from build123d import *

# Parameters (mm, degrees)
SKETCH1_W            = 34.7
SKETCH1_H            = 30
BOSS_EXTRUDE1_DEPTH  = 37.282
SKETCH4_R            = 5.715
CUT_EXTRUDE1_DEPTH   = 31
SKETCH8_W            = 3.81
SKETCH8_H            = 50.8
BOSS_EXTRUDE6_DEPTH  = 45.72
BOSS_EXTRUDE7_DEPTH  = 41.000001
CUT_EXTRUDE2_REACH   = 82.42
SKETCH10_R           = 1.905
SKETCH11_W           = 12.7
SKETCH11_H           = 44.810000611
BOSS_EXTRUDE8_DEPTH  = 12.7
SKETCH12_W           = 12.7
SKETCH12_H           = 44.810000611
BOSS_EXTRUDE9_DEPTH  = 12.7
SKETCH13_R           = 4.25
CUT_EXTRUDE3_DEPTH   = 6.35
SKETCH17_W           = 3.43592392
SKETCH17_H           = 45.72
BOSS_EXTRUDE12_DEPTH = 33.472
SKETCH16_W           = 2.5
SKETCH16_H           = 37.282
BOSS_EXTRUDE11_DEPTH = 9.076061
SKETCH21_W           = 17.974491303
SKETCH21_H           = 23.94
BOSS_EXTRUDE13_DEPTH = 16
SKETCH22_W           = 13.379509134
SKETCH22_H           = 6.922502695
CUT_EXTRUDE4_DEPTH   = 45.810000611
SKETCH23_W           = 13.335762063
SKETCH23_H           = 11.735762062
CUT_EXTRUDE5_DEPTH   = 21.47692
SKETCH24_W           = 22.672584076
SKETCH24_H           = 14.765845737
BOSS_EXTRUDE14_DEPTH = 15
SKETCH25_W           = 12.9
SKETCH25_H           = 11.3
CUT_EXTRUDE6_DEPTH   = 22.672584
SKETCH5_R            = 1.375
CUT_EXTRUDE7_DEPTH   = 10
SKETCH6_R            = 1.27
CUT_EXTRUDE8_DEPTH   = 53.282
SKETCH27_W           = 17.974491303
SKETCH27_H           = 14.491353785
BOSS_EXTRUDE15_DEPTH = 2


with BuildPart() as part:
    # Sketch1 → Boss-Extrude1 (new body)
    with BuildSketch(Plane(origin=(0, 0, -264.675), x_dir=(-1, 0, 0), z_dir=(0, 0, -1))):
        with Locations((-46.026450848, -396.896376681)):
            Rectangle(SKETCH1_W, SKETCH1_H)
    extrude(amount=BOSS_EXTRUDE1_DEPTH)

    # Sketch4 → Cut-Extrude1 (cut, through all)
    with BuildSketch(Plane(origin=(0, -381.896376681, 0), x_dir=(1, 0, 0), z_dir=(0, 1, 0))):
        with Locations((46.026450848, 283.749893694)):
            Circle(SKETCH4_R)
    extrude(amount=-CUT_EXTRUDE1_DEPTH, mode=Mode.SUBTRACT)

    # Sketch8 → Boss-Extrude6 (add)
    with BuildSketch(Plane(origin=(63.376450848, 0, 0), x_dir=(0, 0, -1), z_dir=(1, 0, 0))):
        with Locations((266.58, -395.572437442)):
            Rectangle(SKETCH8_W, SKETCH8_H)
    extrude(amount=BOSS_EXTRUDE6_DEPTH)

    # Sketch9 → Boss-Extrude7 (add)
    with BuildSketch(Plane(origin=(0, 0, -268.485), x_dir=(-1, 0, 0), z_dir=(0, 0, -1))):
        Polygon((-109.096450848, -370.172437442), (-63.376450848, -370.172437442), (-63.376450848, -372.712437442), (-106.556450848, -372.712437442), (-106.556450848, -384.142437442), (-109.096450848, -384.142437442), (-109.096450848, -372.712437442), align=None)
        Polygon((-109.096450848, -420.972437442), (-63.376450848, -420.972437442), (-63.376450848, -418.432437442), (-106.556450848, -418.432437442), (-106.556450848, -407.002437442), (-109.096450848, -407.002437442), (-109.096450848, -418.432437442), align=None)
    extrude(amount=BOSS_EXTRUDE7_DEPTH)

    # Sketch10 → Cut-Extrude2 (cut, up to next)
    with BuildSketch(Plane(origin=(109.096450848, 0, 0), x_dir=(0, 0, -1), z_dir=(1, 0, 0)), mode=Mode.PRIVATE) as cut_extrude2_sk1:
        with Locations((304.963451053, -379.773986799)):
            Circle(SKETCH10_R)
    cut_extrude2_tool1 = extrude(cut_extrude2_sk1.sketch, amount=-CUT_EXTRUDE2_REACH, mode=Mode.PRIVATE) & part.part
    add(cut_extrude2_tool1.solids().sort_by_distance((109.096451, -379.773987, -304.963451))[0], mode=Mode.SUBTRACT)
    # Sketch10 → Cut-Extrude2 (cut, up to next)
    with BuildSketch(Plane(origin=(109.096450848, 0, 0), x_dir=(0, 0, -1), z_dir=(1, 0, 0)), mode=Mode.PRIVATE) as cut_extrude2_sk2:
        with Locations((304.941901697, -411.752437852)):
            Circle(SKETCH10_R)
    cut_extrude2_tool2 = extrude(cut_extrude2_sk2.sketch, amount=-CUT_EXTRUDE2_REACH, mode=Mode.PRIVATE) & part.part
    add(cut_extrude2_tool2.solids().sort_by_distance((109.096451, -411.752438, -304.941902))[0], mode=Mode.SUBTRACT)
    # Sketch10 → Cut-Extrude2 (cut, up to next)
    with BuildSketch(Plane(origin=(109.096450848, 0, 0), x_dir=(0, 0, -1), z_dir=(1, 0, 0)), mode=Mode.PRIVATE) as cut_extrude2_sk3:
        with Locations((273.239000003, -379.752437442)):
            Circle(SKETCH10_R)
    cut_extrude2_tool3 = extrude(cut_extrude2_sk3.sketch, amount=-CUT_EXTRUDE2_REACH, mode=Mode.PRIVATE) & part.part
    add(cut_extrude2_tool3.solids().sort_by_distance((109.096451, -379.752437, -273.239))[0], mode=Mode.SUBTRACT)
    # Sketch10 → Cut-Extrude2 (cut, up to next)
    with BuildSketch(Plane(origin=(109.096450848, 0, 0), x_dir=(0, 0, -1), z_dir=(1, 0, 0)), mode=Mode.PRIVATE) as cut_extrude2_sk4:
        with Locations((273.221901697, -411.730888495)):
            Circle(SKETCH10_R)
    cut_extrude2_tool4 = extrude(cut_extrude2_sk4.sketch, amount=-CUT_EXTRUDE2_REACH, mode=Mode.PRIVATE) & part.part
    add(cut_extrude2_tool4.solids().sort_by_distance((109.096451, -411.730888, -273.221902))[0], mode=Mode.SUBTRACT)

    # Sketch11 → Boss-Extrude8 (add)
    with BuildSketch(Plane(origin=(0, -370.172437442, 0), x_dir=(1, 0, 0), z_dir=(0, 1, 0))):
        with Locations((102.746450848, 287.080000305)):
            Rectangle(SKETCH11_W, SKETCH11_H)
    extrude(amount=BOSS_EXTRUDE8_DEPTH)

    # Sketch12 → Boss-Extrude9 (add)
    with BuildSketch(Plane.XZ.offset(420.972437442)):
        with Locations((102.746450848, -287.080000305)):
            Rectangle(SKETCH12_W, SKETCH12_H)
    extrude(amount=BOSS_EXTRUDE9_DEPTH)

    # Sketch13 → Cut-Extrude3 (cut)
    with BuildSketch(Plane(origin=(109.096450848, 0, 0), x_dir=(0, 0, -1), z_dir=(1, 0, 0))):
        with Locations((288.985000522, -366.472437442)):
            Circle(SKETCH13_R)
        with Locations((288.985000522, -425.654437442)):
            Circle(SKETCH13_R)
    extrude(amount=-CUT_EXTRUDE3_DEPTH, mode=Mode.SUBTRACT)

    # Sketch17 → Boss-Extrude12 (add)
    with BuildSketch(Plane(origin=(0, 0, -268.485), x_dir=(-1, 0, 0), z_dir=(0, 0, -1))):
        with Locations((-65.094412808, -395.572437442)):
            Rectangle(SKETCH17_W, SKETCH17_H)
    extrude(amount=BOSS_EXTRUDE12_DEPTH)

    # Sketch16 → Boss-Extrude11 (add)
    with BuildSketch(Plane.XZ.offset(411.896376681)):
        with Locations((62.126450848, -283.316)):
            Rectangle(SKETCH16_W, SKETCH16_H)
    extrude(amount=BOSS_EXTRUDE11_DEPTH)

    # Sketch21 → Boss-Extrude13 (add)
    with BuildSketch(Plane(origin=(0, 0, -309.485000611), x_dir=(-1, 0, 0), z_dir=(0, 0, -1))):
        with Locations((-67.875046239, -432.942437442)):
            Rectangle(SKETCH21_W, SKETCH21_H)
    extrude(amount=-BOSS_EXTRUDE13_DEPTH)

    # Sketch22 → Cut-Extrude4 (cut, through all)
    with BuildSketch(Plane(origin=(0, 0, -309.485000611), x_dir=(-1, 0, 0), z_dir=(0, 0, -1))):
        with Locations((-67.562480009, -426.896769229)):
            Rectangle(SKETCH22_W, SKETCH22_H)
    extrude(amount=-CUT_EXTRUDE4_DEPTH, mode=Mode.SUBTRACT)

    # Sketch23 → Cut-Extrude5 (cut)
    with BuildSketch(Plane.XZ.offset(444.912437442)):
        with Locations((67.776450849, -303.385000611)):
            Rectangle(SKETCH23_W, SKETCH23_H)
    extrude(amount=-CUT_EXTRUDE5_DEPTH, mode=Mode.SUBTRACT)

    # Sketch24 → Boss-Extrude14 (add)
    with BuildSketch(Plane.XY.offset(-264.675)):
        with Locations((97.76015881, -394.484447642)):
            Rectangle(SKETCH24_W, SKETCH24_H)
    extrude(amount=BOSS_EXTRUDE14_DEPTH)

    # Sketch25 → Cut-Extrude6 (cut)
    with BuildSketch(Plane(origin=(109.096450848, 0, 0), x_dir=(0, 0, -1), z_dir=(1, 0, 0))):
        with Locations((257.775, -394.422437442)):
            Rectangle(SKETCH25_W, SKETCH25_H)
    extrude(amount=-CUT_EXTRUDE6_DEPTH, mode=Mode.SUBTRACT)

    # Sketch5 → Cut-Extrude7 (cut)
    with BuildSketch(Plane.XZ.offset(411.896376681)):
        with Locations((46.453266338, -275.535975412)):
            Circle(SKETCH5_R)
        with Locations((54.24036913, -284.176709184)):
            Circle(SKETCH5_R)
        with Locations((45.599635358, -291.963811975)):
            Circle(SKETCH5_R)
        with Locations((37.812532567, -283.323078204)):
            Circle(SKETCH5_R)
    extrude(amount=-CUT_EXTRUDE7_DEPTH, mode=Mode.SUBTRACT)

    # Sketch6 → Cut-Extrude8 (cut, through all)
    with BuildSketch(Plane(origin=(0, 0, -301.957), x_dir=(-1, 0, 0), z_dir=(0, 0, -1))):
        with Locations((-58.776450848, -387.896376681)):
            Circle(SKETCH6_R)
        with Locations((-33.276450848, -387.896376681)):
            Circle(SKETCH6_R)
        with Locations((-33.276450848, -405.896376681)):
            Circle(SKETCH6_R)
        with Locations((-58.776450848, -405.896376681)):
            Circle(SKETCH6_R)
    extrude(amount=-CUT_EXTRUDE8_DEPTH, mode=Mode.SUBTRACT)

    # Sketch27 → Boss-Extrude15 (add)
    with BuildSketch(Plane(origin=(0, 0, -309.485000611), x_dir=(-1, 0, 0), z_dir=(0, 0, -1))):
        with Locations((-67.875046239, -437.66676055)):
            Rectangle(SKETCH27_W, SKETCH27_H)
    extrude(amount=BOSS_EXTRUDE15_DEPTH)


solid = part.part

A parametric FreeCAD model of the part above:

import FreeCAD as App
import Part
import Sketcher

V = App.Vector

doc = App.newDocument("Part")
body = doc.addObject("PartDesign::Body", "Body")

# Sketch on XY plane
sketch1 = body.newObject("Sketcher::SketchObject", "Sketch")
sketch1.AttachmentSupport = (doc.getObject("XY_Plane"), [""])
sketch1.MapMode = "FlatFace"
sketch1.AttachmentOffset = App.Placement(V(0, 0, -264.675), App.Rotation())
sketch1.addGeometry([
    Part.LineSegment(V(63, -382, 0), V(63, -412, 0)),
    Part.LineSegment(V(63, -412, 0), V(29, -412, 0)),
    Part.LineSegment(V(29, -412, 0), V(29, -382, 0)),
    Part.LineSegment(V(29, -382, 0), V(63, -382, 0)),
], False)
sketch1.addConstraint([
    Sketcher.Constraint("Coincident", 0, 2, 1, 1),
    Sketcher.Constraint("Coincident", 1, 2, 2, 1),
    Sketcher.Constraint("Coincident", 2, 2, 3, 1),
    Sketcher.Constraint("Coincident", 3, 2, 0, 1),
    Sketcher.Constraint("Vertical", 0),
    Sketcher.Constraint("Horizontal", 1),
    Sketcher.Constraint("Vertical", 2),
    Sketcher.Constraint("Horizontal", 3),
    Sketcher.Constraint("DistanceY", 0, 2, 0, 1, 30.0),
    Sketcher.Constraint("DistanceX", 1, 2, 1, 1, 34.7),
    Sketcher.Constraint("DistanceX", -1, 1, 0, 2, 63.376451),
    Sketcher.Constraint("DistanceY", 0, 2, -1, 1, 411.896377),
])
pad1 = body.newObject("PartDesign::Pad", "Pad")
pad1.Profile = sketch1
pad1.Length = 37.282
pad1.Reversed = True

# Sketch on XZ plane
sketch2 = body.newObject("Sketcher::SketchObject", "Sketch001")
sketch2.AttachmentSupport = (doc.getObject("XZ_Plane"), [""])
sketch2.MapMode = "FlatFace"
sketch2.AttachmentOffset = App.Placement(V(0, 0, 381.896377), App.Rotation())
sketch2.addGeometry(Part.Circle(V(46, -284, 0), V(0, 0, 1), 6), False)
sketch2.addConstraint([
    Sketcher.Constraint("Diameter", 0, 11.43),
    Sketcher.Constraint("DistanceX", -1, 1, 0, 3, 46.026451),
    Sketcher.Constraint("DistanceY", 0, 3, -1, 1, 283.749894),
])
pocket1 = body.newObject("PartDesign::Pocket", "Pocket")
pocket1.Profile = sketch2
pocket1.Type = "ThroughAll"
pocket1.Reversed = True

# Sketch on YZ plane
sketch3 = body.newObject("Sketcher::SketchObject", "Sketch002")
sketch3.AttachmentSupport = (doc.getObject("YZ_Plane"), [""])
sketch3.MapMode = "FlatFace"
sketch3.AttachmentOffset = App.Placement(V(0, 0, 63.376451), App.Rotation())
sketch3.addGeometry([
    Part.LineSegment(V(-370.2, -264.7, 0), V(-421, -264.7, 0)),
    Part.LineSegment(V(-421, -264.7, 0), V(-421, -268.5, 0)),
    Part.LineSegment(V(-421, -268.5, 0), V(-370.2, -268.5, 0)),
    Part.LineSegment(V(-370.2, -268.5, 0), V(-370.2, -264.7, 0)),
], False)
sketch3.addConstraint([
    Sketcher.Constraint("Coincident", 0, 2, 1, 1),
    Sketcher.Constraint("Coincident", 1, 2, 2, 1),
    Sketcher.Constraint("Coincident", 2, 2, 3, 1),
    Sketcher.Constraint("Coincident", 3, 2, 0, 1),
    Sketcher.Constraint("Horizontal", 0),
    Sketcher.Constraint("Vertical", 1),
    Sketcher.Constraint("Horizontal", 2),
    Sketcher.Constraint("Vertical", 3),
    Sketcher.Constraint("DistanceX", 0, 2, 0, 1, 50.8),
    Sketcher.Constraint("DistanceY", 1, 2, 1, 1, 3.81),
    Sketcher.Constraint("DistanceY", 0, 2, -1, 1, 264.675),
    Sketcher.Constraint("DistanceX", 0, 2, -1, 1, 420.972437),
])
pad2 = body.newObject("PartDesign::Pad", "Pad001")
pad2.Profile = sketch3
pad2.Length = 45.72

# Sketch on XY plane
sketch4 = body.newObject("Sketcher::SketchObject", "Sketch003")
sketch4.AttachmentSupport = (doc.getObject("XY_Plane"), [""])
sketch4.MapMode = "FlatFace"
sketch4.AttachmentOffset = App.Placement(V(0, 0, -268.485), App.Rotation())
sketch4.addGeometry([
    Part.LineSegment(V(63.4, -370.2, 0), V(109.1, -370.2, 0)),  # 0
    Part.LineSegment(V(109.1, -370.2, 0), V(109.1, -384.1, 0)),  # 1
    Part.LineSegment(V(109.1, -384.1, 0), V(106.6, -384.1, 0)),  # 2
    Part.LineSegment(V(106.6, -384.1, 0), V(106.6, -372.7, 0)),  # 3
    Part.LineSegment(V(106.6, -372.7, 0), V(63.4, -372.7, 0)),  # 4
    Part.LineSegment(V(63.4, -372.7, 0), V(63.4, -370.2, 0)),  # 5
    Part.LineSegment(V(109.1, -421, 0), V(63.4, -421, 0)),  # 6
    Part.LineSegment(V(63.4, -421, 0), V(63.4, -418.4, 0)),  # 7
    Part.LineSegment(V(63.4, -418.4, 0), V(106.6, -418.4, 0)),  # 8
    Part.LineSegment(V(106.6, -418.4, 0), V(106.6, -407, 0)),  # 9
    Part.LineSegment(V(106.6, -407, 0), V(109.1, -407, 0)),  # 10
    Part.LineSegment(V(109.1, -407, 0), V(109.1, -421, 0)),  # 11
], False)
sketch4.addConstraint([
    Sketcher.Constraint("Coincident", 0, 2, 1, 1),
    Sketcher.Constraint("Coincident", 1, 2, 2, 1),
    Sketcher.Constraint("Coincident", 2, 2, 3, 1),
    Sketcher.Constraint("Coincident", 3, 2, 4, 1),
    Sketcher.Constraint("Coincident", 4, 2, 5, 1),
    Sketcher.Constraint("Coincident", 5, 2, 0, 1),
    Sketcher.Constraint("Coincident", 6, 2, 7, 1),
    Sketcher.Constraint("Coincident", 7, 2, 8, 1),
    Sketcher.Constraint("Coincident", 8, 2, 9, 1),
    Sketcher.Constraint("Coincident", 9, 2, 10, 1),
    Sketcher.Constraint("Coincident", 10, 2, 11, 1),
    Sketcher.Constraint("Coincident", 11, 2, 6, 1),
    Sketcher.Constraint("Horizontal", 0),
    Sketcher.Constraint("Vertical", 1),
    Sketcher.Constraint("Horizontal", 2),
    Sketcher.Constraint("Vertical", 3),
    Sketcher.Constraint("Horizontal", 4),
    Sketcher.Constraint("Vertical", 5),
    Sketcher.Constraint("Horizontal", 6),
    Sketcher.Constraint("Vertical", 7),
    Sketcher.Constraint("Horizontal", 8),
    Sketcher.Constraint("Vertical", 9),
    Sketcher.Constraint("Horizontal", 10),
    Sketcher.Constraint("Vertical", 11),
    Sketcher.Constraint("Vertical", 5, 2, 6, 2),
    Sketcher.Constraint("Vertical", 3, 2, 8, 2),
    Sketcher.Constraint("Vertical", 1, 2, 10, 2),
    Sketcher.Constraint("Equal", 10, 5),
    Sketcher.Constraint("Equal", 5, 7),
    Sketcher.Constraint("Equal", 3, 9),
    Sketcher.Constraint("DistanceX", 0, 1, 0, 2, 45.72),
    Sketcher.Constraint("DistanceX", 2, 2, 2, 1, 2.54),
    Sketcher.Constraint("DistanceY", 1, 2, 1, 1, 13.97),
    Sketcher.Constraint("DistanceY", 6, 2, 5, 2, 50.8),
    Sketcher.Constraint("DistanceX", -1, 1, 0, 2, 109.096451),
    Sketcher.Constraint("DistanceY", 0, 2, -1, 1, 370.172437),
])
pad3 = body.newObject("PartDesign::Pad", "Pad002")
pad3.Profile = sketch4
pad3.Length = 41.000001
pad3.Reversed = True

# Sketch on YZ plane
sketch5 = body.newObject("Sketcher::SketchObject", "Sketch004")
sketch5.AttachmentSupport = (doc.getObject("YZ_Plane"), [""])
sketch5.MapMode = "FlatFace"
sketch5.AttachmentOffset = App.Placement(V(0, 0, 109.096451), App.Rotation())
sketch5.addGeometry(Part.Circle(V(-379.8, -305, 0), V(0, 0, 1), 1.9), False)
sketch5.addConstraint([
    Sketcher.Constraint("Diameter", 0, 3.81),
    Sketcher.Constraint("DistanceY", 0, 3, -1, 1, 304.963451),
    Sketcher.Constraint("DistanceX", 0, 3, -1, 1, 379.773987),
])
pocket2 = body.newObject("PartDesign::Pocket", "Pocket001")
pocket2.Profile = sketch5
pocket2.Type = "UpToFirst"

# Sketch on YZ plane
sketch6 = body.newObject("Sketcher::SketchObject", "Sketch005")
sketch6.AttachmentSupport = (doc.getObject("YZ_Plane"), [""])
sketch6.MapMode = "FlatFace"
sketch6.AttachmentOffset = App.Placement(V(0, 0, 109.096451), App.Rotation())
sketch6.addGeometry(Part.Circle(V(-411.8, -304.9, 0), V(0, 0, 1), 1.9), False)
sketch6.addConstraint([
    Sketcher.Constraint("Diameter", 0, 3.81),
    Sketcher.Constraint("DistanceY", 0, 3, -1, 1, 304.941902),
    Sketcher.Constraint("DistanceX", 0, 3, -1, 1, 411.752438),
])
pocket3 = body.newObject("PartDesign::Pocket", "Pocket002")
pocket3.Profile = sketch6
pocket3.Type = "UpToFirst"

# Sketch on YZ plane
sketch7 = body.newObject("Sketcher::SketchObject", "Sketch006")
sketch7.AttachmentSupport = (doc.getObject("YZ_Plane"), [""])
sketch7.MapMode = "FlatFace"
sketch7.AttachmentOffset = App.Placement(V(0, 0, 109.096451), App.Rotation())
sketch7.addGeometry(Part.Circle(V(-379.8, -273.2, 0), V(0, 0, 1), 1.9), False)
sketch7.addConstraint([
    Sketcher.Constraint("Diameter", 0, 3.81),
    Sketcher.Constraint("DistanceY", 0, 3, -1, 1, 273.239),
    Sketcher.Constraint("DistanceX", 0, 3, -1, 1, 379.752437),
])
pocket4 = body.newObject("PartDesign::Pocket", "Pocket003")
pocket4.Profile = sketch7
pocket4.Type = "UpToFirst"

# Sketch on YZ plane
sketch8 = body.newObject("Sketcher::SketchObject", "Sketch007")
sketch8.AttachmentSupport = (doc.getObject("YZ_Plane"), [""])
sketch8.MapMode = "FlatFace"
sketch8.AttachmentOffset = App.Placement(V(0, 0, 109.096451), App.Rotation())
sketch8.addGeometry(Part.Circle(V(-411.7, -273.2, 0), V(0, 0, 1), 1.9), False)
sketch8.addConstraint([
    Sketcher.Constraint("Diameter", 0, 3.81),
    Sketcher.Constraint("DistanceY", 0, 3, -1, 1, 273.221902),
    Sketcher.Constraint("DistanceX", 0, 3, -1, 1, 411.730888),
])
pocket5 = body.newObject("PartDesign::Pocket", "Pocket004")
pocket5.Profile = sketch8
pocket5.Type = "UpToFirst"

# Sketch on XZ plane
sketch9 = body.newObject("Sketcher::SketchObject", "Sketch008")
sketch9.AttachmentSupport = (doc.getObject("XZ_Plane"), [""])
sketch9.MapMode = "FlatFace"
sketch9.AttachmentOffset = App.Placement(V(0, 0, 370.172437), App.Rotation())
sketch9.addGeometry([
    Part.LineSegment(V(96, -309, 0), V(96, -265, 0)),
    Part.LineSegment(V(96, -265, 0), V(109, -265, 0)),
    Part.LineSegment(V(109, -265, 0), V(109, -309, 0)),
    Part.LineSegment(V(109, -309, 0), V(96, -309, 0)),
], False)
sketch9.addConstraint([
    Sketcher.Constraint("Coincident", 0, 2, 1, 1),
    Sketcher.Constraint("Coincident", 1, 2, 2, 1),
    Sketcher.Constraint("Coincident", 2, 2, 3, 1),
    Sketcher.Constraint("Coincident", 3, 2, 0, 1),
    Sketcher.Constraint("Vertical", 0),
    Sketcher.Constraint("Horizontal", 1),
    Sketcher.Constraint("Vertical", 2),
    Sketcher.Constraint("Horizontal", 3),
    Sketcher.Constraint("DistanceX", 1, 1, 1, 2, 12.7),
    Sketcher.Constraint("DistanceY", 0, 1, 0, 2, 44.810001),
    Sketcher.Constraint("DistanceY", 0, 2, -1, 1, 264.675),
    Sketcher.Constraint("DistanceX", -1, 1, 0, 2, 96.396451),
])
pad4 = body.newObject("PartDesign::Pad", "Pad003")
pad4.Profile = sketch9
pad4.Length = 12.7
pad4.Reversed = True

# Sketch on XZ plane
sketch10 = body.newObject("Sketcher::SketchObject", "Sketch009")
sketch10.AttachmentSupport = (doc.getObject("XZ_Plane"), [""])
sketch10.MapMode = "FlatFace"
sketch10.AttachmentOffset = App.Placement(V(0, 0, 420.972437), App.Rotation())
sketch10.addGeometry([
    Part.LineSegment(V(96, -265, 0), V(96, -309, 0)),
    Part.LineSegment(V(96, -309, 0), V(109, -309, 0)),
    Part.LineSegment(V(109, -309, 0), V(109, -265, 0)),
    Part.LineSegment(V(109, -265, 0), V(96, -265, 0)),
], False)
sketch10.addConstraint([
    Sketcher.Constraint("Coincident", 0, 2, 1, 1),
    Sketcher.Constraint("Coincident", 1, 2, 2, 1),
    Sketcher.Constraint("Coincident", 2, 2, 3, 1),
    Sketcher.Constraint("Coincident", 3, 2, 0, 1),
    Sketcher.Constraint("Vertical", 0),
    Sketcher.Constraint("Horizontal", 1),
    Sketcher.Constraint("Vertical", 2),
    Sketcher.Constraint("Horizontal", 3),
    Sketcher.Constraint("DistanceX", 1, 1, 1, 2, 12.7),
    Sketcher.Constraint("DistanceY", 0, 2, 0, 1, 44.810001),
    Sketcher.Constraint("DistanceY", 0, 2, -1, 1, 309.485001),
    Sketcher.Constraint("DistanceX", -1, 1, 0, 2, 96.396451),
])
pad5 = body.newObject("PartDesign::Pad", "Pad004")
pad5.Profile = sketch10
pad5.Length = 12.7

# Sketch on YZ plane
sketch11 = body.newObject("Sketcher::SketchObject", "Sketch010")
sketch11.AttachmentSupport = (doc.getObject("YZ_Plane"), [""])
sketch11.MapMode = "FlatFace"
sketch11.AttachmentOffset = App.Placement(V(0, 0, 109.096451), App.Rotation())
sketch11.addGeometry([
    Part.Circle(V(-366.5, -289, 0), V(0, 0, 1), 4.2),
    Part.Circle(V(-425.7, -289, 0), V(0, 0, 1), 4.2),
], False)
sketch11.addConstraint([
    Sketcher.Constraint("Equal", 0, 1),
    Sketcher.Constraint("Horizontal", 0, 3, 1, 3),
    Sketcher.Constraint("Diameter", 0, 8.5),
    Sketcher.Constraint("DistanceY", 0, 3, -1, 1, 288.985001),
    Sketcher.Constraint("DistanceX", 1, 3, 0, 3, 59.182),
    Sketcher.Constraint("DistanceX", 0, 3, -1, 1, 366.472437),
])
pocket6 = body.newObject("PartDesign::Pocket", "Pocket005")
pocket6.Profile = sketch11
pocket6.Length = 6.35

# Sketch on XY plane
sketch12 = body.newObject("Sketcher::SketchObject", "Sketch011")
sketch12.AttachmentSupport = (doc.getObject("XY_Plane"), [""])
sketch12.MapMode = "FlatFace"
sketch12.AttachmentOffset = App.Placement(V(0, 0, -268.485), App.Rotation())
sketch12.addGeometry([
    Part.LineSegment(V(66.8, -372.7, 0), V(66.8, -418.4, 0)),
    Part.LineSegment(V(66.8, -418.4, 0), V(63.4, -418.4, 0)),
    Part.LineSegment(V(63.4, -418.4, 0), V(63.4, -372.7, 0)),
    Part.LineSegment(V(63.4, -372.7, 0), V(66.8, -372.7, 0)),
], False)
sketch12.addConstraint([
    Sketcher.Constraint("Coincident", 0, 2, 1, 1),
    Sketcher.Constraint("Coincident", 1, 2, 2, 1),
    Sketcher.Constraint("Coincident", 2, 2, 3, 1),
    Sketcher.Constraint("Coincident", 3, 2, 0, 1),
    Sketcher.Constraint("Vertical", 0),
    Sketcher.Constraint("Horizontal", 1),
    Sketcher.Constraint("Vertical", 2),
    Sketcher.Constraint("Horizontal", 3),
    Sketcher.Constraint("DistanceY", 0, 2, 0, 1, 45.72),
    Sketcher.Constraint("DistanceX", 1, 2, 1, 1, 3.435924),
    Sketcher.Constraint("DistanceX", -1, 1, 1, 2, 63.376451),
    Sketcher.Constraint("DistanceY", 0, 2, -1, 1, 418.432437),
])
pad6 = body.newObject("PartDesign::Pad", "Pad005")
pad6.Profile = sketch12
pad6.Length = 33.472
pad6.Reversed = True

# Sketch on XZ plane
sketch13 = body.newObject("Sketcher::SketchObject", "Sketch012")
sketch13.AttachmentSupport = (doc.getObject("XZ_Plane"), [""])
sketch13.MapMode = "FlatFace"
sketch13.AttachmentOffset = App.Placement(V(0, 0, 411.896377), App.Rotation())
sketch13.addGeometry([
    Part.LineSegment(V(60.9, -264.7, 0), V(60.9, -302, 0)),
    Part.LineSegment(V(60.9, -302, 0), V(63.4, -302, 0)),
    Part.LineSegment(V(63.4, -302, 0), V(63.4, -264.7, 0)),
    Part.LineSegment(V(63.4, -264.7, 0), V(60.9, -264.7, 0)),
], False)
sketch13.addConstraint([
    Sketcher.Constraint("Coincident", 0, 2, 1, 1),
    Sketcher.Constraint("Coincident", 1, 2, 2, 1),
    Sketcher.Constraint("Coincident", 2, 2, 3, 1),
    Sketcher.Constraint("Coincident", 3, 2, 0, 1),
    Sketcher.Constraint("Vertical", 0),
    Sketcher.Constraint("Horizontal", 1),
    Sketcher.Constraint("Vertical", 2),
    Sketcher.Constraint("Horizontal", 3),
    Sketcher.Constraint("DistanceX", 1, 1, 1, 2, 2.5),
    Sketcher.Constraint("DistanceY", 0, 2, 0, 1, 37.282),
    Sketcher.Constraint("DistanceY", 0, 2, -1, 1, 301.957),
    Sketcher.Constraint("DistanceX", -1, 1, 0, 2, 60.876451),
])
pad7 = body.newObject("PartDesign::Pad", "Pad006")
pad7.Profile = sketch13
pad7.Length = 9.076061

# Sketch on XY plane
sketch14 = body.newObject("Sketcher::SketchObject", "Sketch013")
sketch14.AttachmentSupport = (doc.getObject("XY_Plane"), [""])
sketch14.MapMode = "FlatFace"
sketch14.AttachmentOffset = App.Placement(V(0, 0, -309.485001), App.Rotation())
sketch14.addGeometry([
    Part.LineSegment(V(77, -421, 0), V(77, -445, 0)),
    Part.LineSegment(V(77, -445, 0), V(59, -445, 0)),
    Part.LineSegment(V(59, -445, 0), V(59, -421, 0)),
    Part.LineSegment(V(59, -421, 0), V(77, -421, 0)),
], False)
sketch14.addConstraint([
    Sketcher.Constraint("Coincident", 0, 2, 1, 1),
    Sketcher.Constraint("Coincident", 1, 2, 2, 1),
    Sketcher.Constraint("Coincident", 2, 2, 3, 1),
    Sketcher.Constraint("Coincident", 3, 2, 0, 1),
    Sketcher.Constraint("Vertical", 0),
    Sketcher.Constraint("Horizontal", 1),
    Sketcher.Constraint("Vertical", 2),
    Sketcher.Constraint("Horizontal", 3),
    Sketcher.Constraint("DistanceY", 0, 2, 0, 1, 23.94),
    Sketcher.Constraint("DistanceX", 1, 2, 1, 1, 17.974491),
    Sketcher.Constraint("DistanceX", -1, 1, 1, 2, 58.887801),
    Sketcher.Constraint("DistanceY", 0, 2, -1, 1, 444.912437),
])
pad8 = body.newObject("PartDesign::Pad", "Pad007")
pad8.Profile = sketch14
pad8.Length = 16

# Sketch on XY plane
sketch15 = body.newObject("Sketcher::SketchObject", "Sketch014")
sketch15.AttachmentSupport = (doc.getObject("XY_Plane"), [""])
sketch15.MapMode = "FlatFace"
sketch15.AttachmentOffset = App.Placement(V(0, 0, -309.485001), App.Rotation())
sketch15.addGeometry([
    Part.LineSegment(V(74, -423, 0), V(74, -430, 0)),
    Part.LineSegment(V(74, -430, 0), V(61, -430, 0)),
    Part.LineSegment(V(61, -430, 0), V(61, -423, 0)),
    Part.LineSegment(V(61, -423, 0), V(74, -423, 0)),
], False)
sketch15.addConstraint([
    Sketcher.Constraint("Coincident", 0, 2, 1, 1),
    Sketcher.Constraint("Coincident", 1, 2, 2, 1),
    Sketcher.Constraint("Coincident", 2, 2, 3, 1),
    Sketcher.Constraint("Coincident", 3, 2, 0, 1),
    Sketcher.Constraint("Vertical", 0),
    Sketcher.Constraint("Horizontal", 1),
    Sketcher.Constraint("Vertical", 2),
    Sketcher.Constraint("Horizontal", 3),
    Sketcher.Constraint("DistanceX", 1, 2, 1, 1, 13.379509),
    Sketcher.Constraint("DistanceY", 0, 2, 0, 1, 6.922503),
    Sketcher.Constraint("DistanceY", 0, 2, -1, 1, 430.358021),
    Sketcher.Constraint("DistanceX", -1, 1, 0, 2, 74.252235),
])
pocket7 = body.newObject("PartDesign::Pocket", "Pocket006")
pocket7.Profile = sketch15
pocket7.Type = "ThroughAll"
pocket7.Reversed = True

# Sketch on XZ plane
sketch16 = body.newObject("Sketcher::SketchObject", "Sketch015")
sketch16.AttachmentSupport = (doc.getObject("XZ_Plane"), [""])
sketch16.MapMode = "FlatFace"
sketch16.AttachmentOffset = App.Placement(V(0, 0, 444.912437), App.Rotation())
sketch16.addGeometry([
    Part.LineSegment(V(61, -298, 0), V(61, -309, 0)),
    Part.LineSegment(V(61, -309, 0), V(74, -309, 0)),
    Part.LineSegment(V(74, -309, 0), V(74, -298, 0)),
    Part.LineSegment(V(74, -298, 0), V(61, -298, 0)),
], False)
sketch16.addConstraint([
    Sketcher.Constraint("Coincident", 0, 2, 1, 1),
    Sketcher.Constraint("Coincident", 1, 2, 2, 1),
    Sketcher.Constraint("Coincident", 2, 2, 3, 1),
    Sketcher.Constraint("Coincident", 3, 2, 0, 1),
    Sketcher.Constraint("Vertical", 0),
    Sketcher.Constraint("Horizontal", 1),
    Sketcher.Constraint("Vertical", 2),
    Sketcher.Constraint("Horizontal", 3),
    Sketcher.Constraint("DistanceX", 1, 1, 1, 2, 13.335762),
    Sketcher.Constraint("DistanceY", 0, 2, 0, 1, 11.735762),
    Sketcher.Constraint("DistanceX", -1, 1, 0, 2, 61.10857),
    Sketcher.Constraint("DistanceY", 0, 2, -1, 1, 309.252882),
])
pocket8 = body.newObject("PartDesign::Pocket", "Pocket007")
pocket8.Profile = sketch16
pocket8.Length = 21.47692

# Sketch on XY plane
sketch17 = body.newObject("Sketcher::SketchObject", "Sketch016")
sketch17.AttachmentSupport = (doc.getObject("XY_Plane"), [""])
sketch17.MapMode = "FlatFace"
sketch17.AttachmentOffset = App.Placement(V(0, 0, -264.675), App.Rotation())
sketch17.addGeometry([
    Part.LineSegment(V(86, -387, 0), V(86, -402, 0)),
    Part.LineSegment(V(86, -402, 0), V(109, -402, 0)),
    Part.LineSegment(V(109, -402, 0), V(109, -387, 0)),
    Part.LineSegment(V(109, -387, 0), V(86, -387, 0)),
], False)
sketch17.addConstraint([
    Sketcher.Constraint("Coincident", 0, 2, 1, 1),
    Sketcher.Constraint("Coincident", 1, 2, 2, 1),
    Sketcher.Constraint("Coincident", 2, 2, 3, 1),
    Sketcher.Constraint("Coincident", 3, 2, 0, 1),
    Sketcher.Constraint("Vertical", 0),
    Sketcher.Constraint("Horizontal", 1),
    Sketcher.Constraint("Vertical", 2),
    Sketcher.Constraint("Horizontal", 3),
    Sketcher.Constraint("DistanceX", 1, 1, 1, 2, 22.672584),
    Sketcher.Constraint("DistanceY", 0, 2, 0, 1, 14.765846),
    Sketcher.Constraint("DistanceY", 0, 2, -1, 1, 401.867371),
    Sketcher.Constraint("DistanceX", -1, 1, 1, 2, 109.096451),
])
pad9 = body.newObject("PartDesign::Pad", "Pad008")
pad9.Profile = sketch17
pad9.Length = 15

# Sketch on YZ plane
sketch18 = body.newObject("Sketcher::SketchObject", "Sketch017")
sketch18.AttachmentSupport = (doc.getObject("YZ_Plane"), [""])
sketch18.MapMode = "FlatFace"
sketch18.AttachmentOffset = App.Placement(V(0, 0, 109.096451), App.Rotation())
sketch18.addGeometry([
    Part.LineSegment(V(-389, -251, 0), V(-400, -251, 0)),
    Part.LineSegment(V(-400, -251, 0), V(-400, -264, 0)),
    Part.LineSegment(V(-400, -264, 0), V(-389, -264, 0)),
    Part.LineSegment(V(-389, -264, 0), V(-389, -251, 0)),
], False)
sketch18.addConstraint([
    Sketcher.Constraint("Coincident", 0, 2, 1, 1),
    Sketcher.Constraint("Coincident", 1, 2, 2, 1),
    Sketcher.Constraint("Coincident", 2, 2, 3, 1),
    Sketcher.Constraint("Coincident", 3, 2, 0, 1),
    Sketcher.Constraint("Horizontal", 0),
    Sketcher.Constraint("Vertical", 1),
    Sketcher.Constraint("Horizontal", 2),
    Sketcher.Constraint("Vertical", 3),
    Sketcher.Constraint("DistanceX", 0, 2, 0, 1, 11.3),
    Sketcher.Constraint("DistanceY", 1, 2, 1, 1, 12.9),
    Sketcher.Constraint("DistanceY", 0, 2, -1, 1, 251.325),
    Sketcher.Constraint("DistanceX", 0, 2, -1, 1, 400.072437),
])
pocket9 = body.newObject("PartDesign::Pocket", "Pocket008")
pocket9.Profile = sketch18
pocket9.Length = 22.672584

# Sketch on XZ plane
sketch19 = body.newObject("Sketcher::SketchObject", "Sketch018")
sketch19.AttachmentSupport = (doc.getObject("XZ_Plane"), [""])
sketch19.MapMode = "FlatFace"
sketch19.AttachmentOffset = App.Placement(V(0, 0, 411.896377), App.Rotation())
sketch19.addGeometry([
    Part.Circle(V(46.5, -275.5, 0), V(0, 0, 1), 1.4),
    Part.Circle(V(54.2, -284.2, 0), V(0, 0, 1), 1.4),
    Part.Circle(V(45.6, -292, 0), V(0, 0, 1), 1.4),
    Part.Circle(V(37.8, -283.3, 0), V(0, 0, 1), 1.4),
], False)
sketch19.addConstraint([
    Sketcher.Constraint("Equal", 0, 1),
    Sketcher.Constraint("Equal", 1, 2),
    Sketcher.Constraint("Equal", 2, 3),
    Sketcher.Constraint("Diameter", 0, 2.75),
    Sketcher.Constraint("DistanceX", -1, 1, 1, 3, 54.240369),
    Sketcher.Constraint("DistanceY", 1, 3, -1, 1, 284.176709),
    Sketcher.Constraint("DistanceY", 2, 3, -1, 1, 291.963812),
    Sketcher.Constraint("DistanceY", 3, 3, -1, 1, 283.323078),
    Sketcher.Constraint("DistanceX", 2, 3, 0, 3, 0.853631),
    Sketcher.Constraint("DistanceX", -1, 1, 0, 3, 46.453266),
    Sketcher.Constraint("DistanceY", 0, 3, -1, 1, 275.535975),
    Sketcher.Constraint("DistanceX", -1, 1, 3, 3, 37.812533),
])
pocket10 = body.newObject("PartDesign::Pocket", "Pocket009")
pocket10.Profile = sketch19
pocket10.Length = 10

# Sketch on XY plane
sketch20 = body.newObject("Sketcher::SketchObject", "Sketch019")
sketch20.AttachmentSupport = (doc.getObject("XY_Plane"), [""])
sketch20.MapMode = "FlatFace"
sketch20.AttachmentOffset = App.Placement(V(0, 0, -301.957), App.Rotation())
sketch20.addGeometry([
    Part.Circle(V(58.8, -387.9, 0), V(0, 0, 1), 1.3),
    Part.Circle(V(33.3, -387.9, 0), V(0, 0, 1), 1.3),
    Part.Circle(V(33.3, -405.9, 0), V(0, 0, 1), 1.3),
    Part.Circle(V(58.8, -405.9, 0), V(0, 0, 1), 1.3),
], False)
sketch20.addConstraint([
    Sketcher.Constraint("Equal", 0, 1),
    Sketcher.Constraint("Equal", 1, 2),
    Sketcher.Constraint("Equal", 2, 3),
    Sketcher.Constraint("Horizontal", 0, 3, 1, 3),
    Sketcher.Constraint("Horizontal", 2, 3, 3, 3),
    Sketcher.Constraint("Vertical", 1, 3, 2, 3),
    Sketcher.Constraint("Vertical", 0, 3, 3, 3),
    Sketcher.Constraint("Diameter", 0, 2.54),
    Sketcher.Constraint("DistanceY", 2, 3, 1, 3, 18.0),
    Sketcher.Constraint("DistanceX", 1, 3, 0, 3, 25.5),
    Sketcher.Constraint("DistanceX", -1, 1, 0, 3, 58.776451),
    Sketcher.Constraint("DistanceY", 0, 3, -1, 1, 387.896377),
])
pocket11 = body.newObject("PartDesign::Pocket", "Pocket010")
pocket11.Profile = sketch20
pocket11.Type = "ThroughAll"
pocket11.Reversed = True

# Sketch on XY plane
sketch21 = body.newObject("Sketcher::SketchObject", "Sketch020")
sketch21.AttachmentSupport = (doc.getObject("XY_Plane"), [""])
sketch21.MapMode = "FlatFace"
sketch21.AttachmentOffset = App.Placement(V(0, 0, -309.485001), App.Rotation())
sketch21.addGeometry([
    Part.LineSegment(V(77, -430, 0), V(77, -445, 0)),
    Part.LineSegment(V(77, -445, 0), V(59, -445, 0)),
    Part.LineSegment(V(59, -445, 0), V(59, -430, 0)),
    Part.LineSegment(V(59, -430, 0), V(77, -430, 0)),
], False)
sketch21.addConstraint([
    Sketcher.Constraint("Coincident", 0, 2, 1, 1),
    Sketcher.Constraint("Coincident", 1, 2, 2, 1),
    Sketcher.Constraint("Coincident", 2, 2, 3, 1),
    Sketcher.Constraint("Coincident", 3, 2, 0, 1),
    Sketcher.Constraint("Vertical", 0),
    Sketcher.Constraint("Horizontal", 1),
    Sketcher.Constraint("Vertical", 2),
    Sketcher.Constraint("Horizontal", 3),
    Sketcher.Constraint("DistanceX", 1, 2, 1, 1, 17.974491),
    Sketcher.Constraint("DistanceX", -1, 1, 1, 2, 58.887801),
    Sketcher.Constraint("DistanceY", 0, 2, 0, 1, 14.491354),
    Sketcher.Constraint("DistanceY", 0, 2, -1, 1, 444.912437),
])
pad10 = body.newObject("PartDesign::Pad", "Pad009")
pad10.Profile = sketch21
pad10.Length = 2
pad10.Reversed = True

doc.recompute()
